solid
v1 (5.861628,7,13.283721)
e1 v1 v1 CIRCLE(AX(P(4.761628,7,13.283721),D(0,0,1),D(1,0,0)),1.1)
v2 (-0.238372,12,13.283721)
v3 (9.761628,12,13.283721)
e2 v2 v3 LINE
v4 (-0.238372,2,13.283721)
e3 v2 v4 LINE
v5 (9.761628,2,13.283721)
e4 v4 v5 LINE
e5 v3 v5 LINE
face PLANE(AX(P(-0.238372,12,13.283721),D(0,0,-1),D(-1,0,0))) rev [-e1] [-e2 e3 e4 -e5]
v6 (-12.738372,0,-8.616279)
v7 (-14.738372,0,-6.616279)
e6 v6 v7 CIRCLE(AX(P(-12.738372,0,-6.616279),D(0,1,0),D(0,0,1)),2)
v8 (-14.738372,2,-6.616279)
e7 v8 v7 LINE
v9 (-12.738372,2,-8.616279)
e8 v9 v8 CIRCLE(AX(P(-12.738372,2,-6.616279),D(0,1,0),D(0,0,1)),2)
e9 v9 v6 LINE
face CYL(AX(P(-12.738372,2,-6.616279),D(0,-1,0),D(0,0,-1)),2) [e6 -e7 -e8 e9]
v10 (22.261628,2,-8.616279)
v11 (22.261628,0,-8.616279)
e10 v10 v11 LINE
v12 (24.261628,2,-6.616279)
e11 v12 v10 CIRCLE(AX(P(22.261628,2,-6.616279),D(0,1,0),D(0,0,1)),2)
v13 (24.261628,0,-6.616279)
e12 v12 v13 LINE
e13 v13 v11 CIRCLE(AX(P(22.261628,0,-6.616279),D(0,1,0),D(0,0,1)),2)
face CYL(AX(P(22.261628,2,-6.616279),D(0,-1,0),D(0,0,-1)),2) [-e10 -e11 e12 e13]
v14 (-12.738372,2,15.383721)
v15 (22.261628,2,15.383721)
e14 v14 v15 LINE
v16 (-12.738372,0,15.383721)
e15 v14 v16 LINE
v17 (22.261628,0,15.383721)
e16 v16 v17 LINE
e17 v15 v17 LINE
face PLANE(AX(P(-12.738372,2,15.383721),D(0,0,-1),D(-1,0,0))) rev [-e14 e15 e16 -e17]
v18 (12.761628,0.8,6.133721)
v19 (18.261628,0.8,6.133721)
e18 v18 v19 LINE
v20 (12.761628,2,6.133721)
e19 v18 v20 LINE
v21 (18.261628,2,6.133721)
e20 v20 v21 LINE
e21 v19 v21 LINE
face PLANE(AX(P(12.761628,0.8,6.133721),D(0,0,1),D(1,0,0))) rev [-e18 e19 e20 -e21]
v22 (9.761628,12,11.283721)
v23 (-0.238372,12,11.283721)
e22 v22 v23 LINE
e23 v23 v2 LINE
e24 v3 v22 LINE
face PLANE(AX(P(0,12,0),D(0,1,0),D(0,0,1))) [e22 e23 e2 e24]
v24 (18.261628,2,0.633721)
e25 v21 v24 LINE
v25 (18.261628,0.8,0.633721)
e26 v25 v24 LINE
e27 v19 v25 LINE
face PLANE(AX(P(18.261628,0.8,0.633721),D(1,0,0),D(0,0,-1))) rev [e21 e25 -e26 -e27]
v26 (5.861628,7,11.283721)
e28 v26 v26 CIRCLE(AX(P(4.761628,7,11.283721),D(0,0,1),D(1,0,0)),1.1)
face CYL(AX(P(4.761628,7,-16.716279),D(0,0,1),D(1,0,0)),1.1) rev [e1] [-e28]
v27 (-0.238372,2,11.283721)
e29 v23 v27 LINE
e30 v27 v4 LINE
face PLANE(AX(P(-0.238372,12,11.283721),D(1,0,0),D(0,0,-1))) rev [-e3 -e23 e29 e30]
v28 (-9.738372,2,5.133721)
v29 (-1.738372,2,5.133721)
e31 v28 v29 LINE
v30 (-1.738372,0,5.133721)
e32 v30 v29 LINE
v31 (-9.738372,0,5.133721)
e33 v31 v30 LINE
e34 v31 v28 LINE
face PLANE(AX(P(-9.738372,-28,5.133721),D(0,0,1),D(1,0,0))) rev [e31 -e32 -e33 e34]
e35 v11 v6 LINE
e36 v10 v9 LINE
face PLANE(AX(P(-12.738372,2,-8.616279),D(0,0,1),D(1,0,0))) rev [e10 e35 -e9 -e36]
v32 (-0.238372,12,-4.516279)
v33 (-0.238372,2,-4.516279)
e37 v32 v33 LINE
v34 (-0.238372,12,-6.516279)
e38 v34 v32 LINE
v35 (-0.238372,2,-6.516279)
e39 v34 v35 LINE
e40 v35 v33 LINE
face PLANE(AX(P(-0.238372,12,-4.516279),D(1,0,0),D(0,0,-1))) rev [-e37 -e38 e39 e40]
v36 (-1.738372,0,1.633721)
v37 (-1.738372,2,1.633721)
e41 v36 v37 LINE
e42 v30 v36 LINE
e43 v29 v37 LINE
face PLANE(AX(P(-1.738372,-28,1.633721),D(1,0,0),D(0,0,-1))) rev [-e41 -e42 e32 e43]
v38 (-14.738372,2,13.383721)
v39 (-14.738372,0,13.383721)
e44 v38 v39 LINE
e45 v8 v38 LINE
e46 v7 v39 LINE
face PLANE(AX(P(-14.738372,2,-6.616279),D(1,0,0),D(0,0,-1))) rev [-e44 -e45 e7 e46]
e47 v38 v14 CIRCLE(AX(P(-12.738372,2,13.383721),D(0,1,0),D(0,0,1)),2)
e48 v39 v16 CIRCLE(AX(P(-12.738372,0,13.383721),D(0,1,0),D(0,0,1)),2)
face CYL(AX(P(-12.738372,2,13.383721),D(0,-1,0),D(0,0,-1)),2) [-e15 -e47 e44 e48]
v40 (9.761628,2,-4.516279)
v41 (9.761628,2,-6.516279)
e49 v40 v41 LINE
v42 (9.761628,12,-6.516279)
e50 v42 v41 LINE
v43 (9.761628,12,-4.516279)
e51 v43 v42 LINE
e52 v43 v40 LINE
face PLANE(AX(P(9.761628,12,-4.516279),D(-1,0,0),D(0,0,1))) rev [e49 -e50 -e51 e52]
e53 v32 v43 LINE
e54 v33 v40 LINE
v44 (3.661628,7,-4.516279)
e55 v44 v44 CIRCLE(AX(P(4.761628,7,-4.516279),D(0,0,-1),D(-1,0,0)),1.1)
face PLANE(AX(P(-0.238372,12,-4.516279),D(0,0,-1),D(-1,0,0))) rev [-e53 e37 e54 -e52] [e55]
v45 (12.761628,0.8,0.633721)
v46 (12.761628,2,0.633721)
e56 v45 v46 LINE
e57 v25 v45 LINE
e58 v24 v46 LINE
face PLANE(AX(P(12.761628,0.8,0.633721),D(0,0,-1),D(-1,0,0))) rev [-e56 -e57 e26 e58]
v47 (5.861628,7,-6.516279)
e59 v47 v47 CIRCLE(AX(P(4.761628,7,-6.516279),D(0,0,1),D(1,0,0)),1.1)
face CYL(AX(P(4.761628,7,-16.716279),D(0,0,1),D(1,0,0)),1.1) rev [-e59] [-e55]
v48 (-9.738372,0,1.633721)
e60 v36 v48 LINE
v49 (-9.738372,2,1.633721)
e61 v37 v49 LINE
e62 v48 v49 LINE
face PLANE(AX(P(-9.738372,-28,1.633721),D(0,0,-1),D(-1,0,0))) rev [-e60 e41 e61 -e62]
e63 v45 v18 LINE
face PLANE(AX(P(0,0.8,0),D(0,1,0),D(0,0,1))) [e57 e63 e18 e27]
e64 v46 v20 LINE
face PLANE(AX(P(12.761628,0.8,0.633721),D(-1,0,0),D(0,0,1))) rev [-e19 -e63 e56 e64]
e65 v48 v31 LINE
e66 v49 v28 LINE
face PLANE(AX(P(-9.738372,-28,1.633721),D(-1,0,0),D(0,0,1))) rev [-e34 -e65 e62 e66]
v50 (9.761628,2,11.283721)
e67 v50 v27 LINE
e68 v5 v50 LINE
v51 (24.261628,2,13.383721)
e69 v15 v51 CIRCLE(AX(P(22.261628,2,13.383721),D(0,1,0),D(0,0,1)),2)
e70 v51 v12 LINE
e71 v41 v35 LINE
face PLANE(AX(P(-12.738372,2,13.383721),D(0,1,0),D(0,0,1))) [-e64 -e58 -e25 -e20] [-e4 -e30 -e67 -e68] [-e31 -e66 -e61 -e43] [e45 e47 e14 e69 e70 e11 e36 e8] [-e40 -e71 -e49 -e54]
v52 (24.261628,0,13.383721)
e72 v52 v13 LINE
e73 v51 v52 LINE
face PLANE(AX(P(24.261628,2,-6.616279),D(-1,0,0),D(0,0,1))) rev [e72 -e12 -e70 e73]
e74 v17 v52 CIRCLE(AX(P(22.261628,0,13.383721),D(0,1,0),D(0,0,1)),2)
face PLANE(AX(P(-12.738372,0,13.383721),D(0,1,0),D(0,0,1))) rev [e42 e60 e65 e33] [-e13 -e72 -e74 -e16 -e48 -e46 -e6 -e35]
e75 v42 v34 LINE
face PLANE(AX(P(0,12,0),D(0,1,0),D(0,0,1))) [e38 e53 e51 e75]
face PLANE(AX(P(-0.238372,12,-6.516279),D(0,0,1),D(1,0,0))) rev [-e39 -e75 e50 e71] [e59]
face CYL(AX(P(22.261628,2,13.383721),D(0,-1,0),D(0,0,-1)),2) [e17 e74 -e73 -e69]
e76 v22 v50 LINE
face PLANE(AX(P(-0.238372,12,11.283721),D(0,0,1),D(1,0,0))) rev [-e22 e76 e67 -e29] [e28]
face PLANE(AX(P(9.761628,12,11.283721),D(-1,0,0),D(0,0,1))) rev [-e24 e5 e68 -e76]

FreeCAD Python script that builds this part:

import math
import FreeCAD as App
import Part
import Sketcher
from FreeCAD import Vector
Q = App.Units.Quantity

doc = App.newDocument("Part")
params = doc.addObject("Spreadsheet::Sheet", "Params")
for row, (alias, value) in enumerate([
    ("sketch1_radius", "2 mm"),
    ("sketch1_width", "35 mm"),
    ("sketch1_height", "20 mm"),
    ("pad1_length", "2 mm"),
    ("sketch2_width", "10 mm"),
    ("sketch2_height", "2 mm"),
    ("pad2_length", "10 mm"),
    ("sketch3_diameter", "2.2 mm"),
    ("pocket1_length", "30 mm"),
    ("sketch4_width", "8 mm"),
    ("sketch4_height", "3.5 mm"),
    ("pocket2_length", "30 mm"),
    ("sketch5_width", "5.5 mm"),
    ("pocket3_length", "1.2 mm"),
], start=1):
    params.set(f"A{row}", alias)
    params.set(f"B{row}", "=" + value)
    params.setAlias(f"B{row}", alias)

body = doc.addObject("PartDesign::Body", "Body")

sketch1 = doc.addObject("Sketcher::SketchObject", "Sketch")
body.addObject(sketch1)
sketch1.AttachmentSupport = (doc.XZ_Plane, [""])
sketch1.MapMode = "FlatFace"
sketch1.addGeometry([
    Part.LineSegment(Vector(22.261628, -8.616279, 0), Vector(-12.738372, -8.616279, 0)),
    Part.ArcOfCircle(Part.Circle(Vector(-12.738372, -6.616279, 0), Vector(0, 0, 1), 2), math.radians(-180), math.radians(-90)),
    Part.LineSegment(Vector(-14.738372, -6.616279, 0), Vector(-14.738372, 13.383721, 0)),
    Part.ArcOfCircle(Part.Circle(Vector(-12.738372, 13.383721, 0), Vector(0, 0, 1), 2), math.radians(90), math.radians(180)),
    Part.LineSegment(Vector(-12.738372, 15.383721, 0), Vector(22.261628, 15.383721, 0)),
    Part.ArcOfCircle(Part.Circle(Vector(22.261628, 13.383721, 0), Vector(0, 0, 1), 2), math.radians(0), math.radians(90)),
    Part.LineSegment(Vector(24.261628, 13.383721, 0), Vector(24.261628, -6.616279, 0)),
    Part.ArcOfCircle(Part.Circle(Vector(22.261628, -6.616279, 0), Vector(0, 0, 1), 2), math.radians(-90), math.radians(0)),
], False)
sketch1.addConstraint([
    Sketcher.Constraint("Tangent", 0, 2, 1, 2),
    Sketcher.Constraint("Tangent", 1, 1, 2, 1),
    Sketcher.Constraint("Tangent", 2, 2, 3, 2),
    Sketcher.Constraint("Tangent", 3, 1, 4, 1),
    Sketcher.Constraint("Tangent", 4, 2, 5, 2),
    Sketcher.Constraint("Tangent", 5, 1, 6, 1),
    Sketcher.Constraint("Tangent", 6, 2, 7, 2),
    Sketcher.Constraint("Tangent", 7, 1, 0, 1),
    Sketcher.Constraint("Horizontal", 0),
    Sketcher.Constraint("Vertical", 2),
    Sketcher.Constraint("Horizontal", 4),
    Sketcher.Constraint("Vertical", 6),
    Sketcher.Constraint("Equal", 1, 3),
    Sketcher.Constraint("Equal", 3, 5),
    Sketcher.Constraint("Equal", 5, 7),
    Sketcher.Constraint("Radius", 1, Q("2 mm")),
    Sketcher.Constraint("DistanceX", 0, 2, 0, 1, Q("35 mm")),
    Sketcher.Constraint("DistanceY", 2, 1, 2, 2, Q("20 mm")),
    Sketcher.Constraint("DistanceY", 1, 3, -1, 1, Q("6.616279 mm")),
    Sketcher.Constraint("DistanceX", 1, 3, -1, 1, Q("12.738372 mm")),
])
sketch1.setExpression("Constraints[15]", "Params.sketch1_radius")
sketch1.setExpression("Constraints[16]", "Params.sketch1_width")
sketch1.setExpression("Constraints[17]", "Params.sketch1_height")
pad1 = doc.addObject("PartDesign::Pad", "Pad")
body.addObject(pad1)
pad1.Profile = sketch1
pad1.setExpression("Length", "Params.pad1_length")
pad1.Reversed = True

sketch2 = doc.addObject("Sketcher::SketchObject", "Sketch001")
body.addObject(sketch2)
sketch2.AttachmentSupport = (doc.XZ_Plane, [""])
sketch2.MapMode = "FlatFace"
sketch2.AttachmentOffset = App.Placement(Vector(0, 0, -2), App.Rotation())
sketch2.addGeometry([
    Part.LineSegment(Vector(-0.238372, 11.283721, 0), Vector(-0.238372, 13.283721, 0)),
    Part.LineSegment(Vector(-0.238372, 13.283721, 0), Vector(9.761628, 13.283721, 0)),
    Part.LineSegment(Vector(9.761628, 13.283721, 0), Vector(9.761628, 11.283721, 0)),
    Part.LineSegment(Vector(9.761628, 11.283721, 0), Vector(-0.238372, 11.283721, 0)),
    Part.LineSegment(Vector(-0.238372, -6.516279, 0), Vector(-0.238372, -4.516279, 0)),
    Part.LineSegment(Vector(-0.238372, -4.516279, 0), Vector(9.761628, -4.516279, 0)),
    Part.LineSegment(Vector(9.761628, -4.516279, 0), Vector(9.761628, -6.516279, 0)),
    Part.LineSegment(Vector(9.761628, -6.516279, 0), Vector(-0.238372, -6.516279, 0)),
], False)
sketch2.addConstraint([
    Sketcher.Constraint("Coincident", 0, 2, 1, 1),
    Sketcher.Constraint("Coincident", 1, 2, 2, 1),
    Sketcher.Constraint("Coincident", 2, 2, 3, 1),
    Sketcher.Constraint("Coincident", 3, 2, 0, 1),
    Sketcher.Constraint("Coincident", 4, 2, 5, 1),
    Sketcher.Constraint("Coincident", 5, 2, 6, 1),
    Sketcher.Constraint("Coincident", 6, 2, 7, 1),
    Sketcher.Constraint("Coincident", 7, 2, 4, 1),
    Sketcher.Constraint("Vertical", 0),
    Sketcher.Constraint("Horizontal", 1),
    Sketcher.Constraint("Vertical", 2),
    Sketcher.Constraint("Horizontal", 3),
    Sketcher.Constraint("Vertical", 4),
    Sketcher.Constraint("Horizontal", 5),
    Sketcher.Constraint("Vertical", 6),
    Sketcher.Constraint("Horizontal", 7),
    Sketcher.Constraint("Vertical", 3, 2, 4, 2),
    Sketcher.Constraint("Vertical", 2, 2, 5, 2),
    Sketcher.Constraint("Equal", 2, 4),
    Sketcher.Constraint("DistanceX", 1, 1, 1, 2, Q("10 mm")),
    Sketcher.Constraint("DistanceY", 0, 1, 0, 2, Q("2 mm")),
    Sketcher.Constraint("DistanceY", 4, 2, 3, 2, Q("15.8 mm")),
    Sketcher.Constraint("DistanceY", -1, 1, 0, 2, Q("13.283721 mm")),
    Sketcher.Constraint("DistanceX", 0, 2, -1, 1, Q("0.238372 mm")),
])
sketch2.setExpression("Constraints[19]", "Params.sketch2_width")
sketch2.setExpression("Constraints[20]", "Params.sketch2_height")
pad2 = doc.addObject("PartDesign::Pad", "Pad001")
body.addObject(pad2)
pad2.Profile = sketch2
pad2.setExpression("Length", "Params.pad2_length")
pad2.Reversed = True

sketch3 = doc.addObject("Sketcher::SketchObject", "Sketch002")
body.addObject(sketch3)
sketch3.AttachmentSupport = (doc.XY_Plane, [""])
sketch3.MapMode = "FlatFace"
sketch3.AttachmentOffset = App.Placement(Vector(0, 0, 13.283721), App.Rotation())
sketch3.addGeometry(Part.Circle(Vector(4.761628, 7, 0), Vector(0, 0, 1), 1.1), False)
sketch3.addConstraint([
    Sketcher.Constraint("Diameter", 0, Q("2.2 mm")),
    Sketcher.Constraint("DistanceY", -1, 1, 0, 3, Q("7 mm")),
    Sketcher.Constraint("DistanceX", -1, 1, 0, 3, Q("4.761628 mm")),
])
sketch3.setExpression("Constraints[0]", "Params.sketch3_diameter")
pocket1 = doc.addObject("PartDesign::Pocket", "Pocket")
body.addObject(pocket1)
pocket1.Profile = sketch3
pocket1.setExpression("Length", "Params.pocket1_length")

sketch4 = doc.addObject("Sketcher::SketchObject", "Sketch003")
body.addObject(sketch4)
sketch4.AttachmentSupport = (doc.XZ_Plane, [""])
sketch4.MapMode = "FlatFace"
sketch4.AttachmentOffset = App.Placement(Vector(0, 0, -2), App.Rotation())
sketch4.addGeometry([
    Part.LineSegment(Vector(-9.738372, 1.633721, 0), Vector(-9.738372, 5.133721, 0)),
    Part.LineSegment(Vector(-9.738372, 5.133721, 0), Vector(-1.738372, 5.133721, 0)),
    Part.LineSegment(Vector(-1.738372, 5.133721, 0), Vector(-1.738372, 1.633721, 0)),
    Part.LineSegment(Vector(-1.738372, 1.633721, 0), Vector(-9.738372, 1.633721, 0)),
], False)
sketch4.addConstraint([
    Sketcher.Constraint("Coincident", 0, 2, 1, 1),
    Sketcher.Constraint("Coincident", 1, 2, 2, 1),
    Sketcher.Constraint("Coincident", 2, 2, 3, 1),
    Sketcher.Constraint("Coincident", 3, 2, 0, 1),
    Sketcher.Constraint("Vertical", 0),
    Sketcher.Constraint("Horizontal", 1),
    Sketcher.Constraint("Vertical", 2),
    Sketcher.Constraint("Horizontal", 3),
    Sketcher.Constraint("DistanceX", 1, 1, 1, 2, Q("8 mm")),
    Sketcher.Constraint("DistanceY", 0, 1, 0, 2, Q("3.5 mm")),
    Sketcher.Constraint("DistanceY", -1, 1, 0, 2, Q("5.133721 mm")),
    Sketcher.Constraint("DistanceX", 0, 2, -1, 1, Q("9.738372 mm")),
])
sketch4.setExpression("Constraints[8]", "Params.sketch4_width")
sketch4.setExpression("Constraints[9]", "Params.sketch4_height")
pocket2 = doc.addObject("PartDesign::Pocket", "Pocket001")
body.addObject(pocket2)
pocket2.Profile = sketch4
pocket2.setExpression("Length", "Params.pocket2_length")
pocket2.Reversed = True

sketch5 = doc.addObject("Sketcher::SketchObject", "Sketch004")
body.addObject(sketch5)
sketch5.AttachmentSupport = (doc.XZ_Plane, [""])
sketch5.MapMode = "FlatFace"
sketch5.AttachmentOffset = App.Placement(Vector(0, 0, -2), App.Rotation())
sketch5.addGeometry([
    Part.LineSegment(Vector(12.761628, 0.633721, 0), Vector(12.761628, 6.133721, 0)),
    Part.LineSegment(Vector(12.761628, 6.133721, 0), Vector(18.261628, 6.133721, 0)),
    Part.LineSegment(Vector(18.261628, 6.133721, 0), Vector(18.261628, 0.633721, 0)),
    Part.LineSegment(Vector(18.261628, 0.633721, 0), Vector(12.761628, 0.633721, 0)),
], False)
sketch5.addConstraint([
    Sketcher.Constraint("Coincident", 0, 2, 1, 1),
    Sketcher.Constraint("Coincident", 1, 2, 2, 1),
    Sketcher.Constraint("Coincident", 2, 2, 3, 1),
    Sketcher.Constraint("Coincident", 3, 2, 0, 1),
    Sketcher.Constraint("Vertical", 0),
    Sketcher.Constraint("Horizontal", 1),
    Sketcher.Constraint("Vertical", 2),
    Sketcher.Constraint("Horizontal", 3),
    Sketcher.Constraint("Equal", 3, 0),
    Sketcher.Constraint("DistanceX", 1, 1, 1, 2, Q("5.5 mm")),
    Sketcher.Constraint("DistanceY", -1, 1, 0, 2, Q("6.133721 mm")),
    Sketcher.Constraint("DistanceX", -1, 1, 0, 2, Q("12.761628 mm")),
])
sketch5.setExpression("Constraints[9]", "Params.sketch5_width")
pocket3 = doc.addObject("PartDesign::Pocket", "Pocket002")
body.addObject(pocket3)
pocket3.Profile = sketch5
pocket3.setExpression("Length", "Params.pocket3_length")
pocket3.Reversed = True

doc.recompute()
